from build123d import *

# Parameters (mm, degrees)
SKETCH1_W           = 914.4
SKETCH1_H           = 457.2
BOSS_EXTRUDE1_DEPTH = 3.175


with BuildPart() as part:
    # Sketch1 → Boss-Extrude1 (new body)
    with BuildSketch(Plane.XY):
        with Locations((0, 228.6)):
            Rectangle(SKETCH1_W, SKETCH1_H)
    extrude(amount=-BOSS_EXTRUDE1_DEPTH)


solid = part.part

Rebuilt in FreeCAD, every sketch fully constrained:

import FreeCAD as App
import Part
import Sketcher
Q = App.Units.Quantity


def add_polygon(sketch, points):
    """Adds a closed chain of lines whose ends are joined by coincident constraints."""
    first, n = sketch.GeometryCount, len(points)
    for a, b in zip(points, points[1:] + points[:1]):
        sketch.addGeometry(Part.LineSegment(App.Vector(*a, 0), App.Vector(*b, 0)), False)
    for i in range(n):
        sketch.addConstraint(Sketcher.Constraint("Coincident", first + i, 2, first + (i + 1) % n, 1))

doc = App.newDocument("Part")
params = doc.addObject("Spreadsheet::Sheet", "Params")
for row, (alias, value) in enumerate([
    ("sketch1_width", "36 in"),
    ("sketch1_height", "18 in"),
    ("pad1_length", "0.125 in"),
], start=1):
    params.set(f"A{row}", alias)
    params.set(f"B{row}", "=" + value)
    params.setAlias(f"B{row}", alias)

body = doc.addObject("PartDesign::Body", "Body")

sketch1 = body.newObject("Sketcher::SketchObject", "Sketch")
sketch1.AttachmentSupport = (doc.getObject("XY_Plane"), [""])
sketch1.MapMode = "FlatFace"
add_polygon(sketch1, [(-457, 457), (-457, 0), (457, 0), (457, 457)])
sketch1.addConstraint([
    Sketcher.Constraint("Vertical", 0),
    Sketcher.Constraint("Horizontal", 1),
    Sketcher.Constraint("Vertical", 2),
    Sketcher.Constraint("Horizontal", 3),
    Sketcher.Constraint("Symmetric", 0, 2, 1, 2, -1, 1),
    Sketcher.Constraint("DistanceX", 1, 1, 1, 2, Q("36 in")),
    Sketcher.Constraint("DistanceY", 0, 2, 0, 1, Q("18 in")),
])
sketch1.setExpression("Constraints[9]", "Params.sketch1_width")
sketch1.setExpression("Constraints[10]", "Params.sketch1_height")
pad1 = body.newObject("PartDesign::Pad", "Pad")
pad1.Profile = sketch1
pad1.setExpression("Length", "Params.pad1_length")
pad1.Reversed = True

doc.recompute()
